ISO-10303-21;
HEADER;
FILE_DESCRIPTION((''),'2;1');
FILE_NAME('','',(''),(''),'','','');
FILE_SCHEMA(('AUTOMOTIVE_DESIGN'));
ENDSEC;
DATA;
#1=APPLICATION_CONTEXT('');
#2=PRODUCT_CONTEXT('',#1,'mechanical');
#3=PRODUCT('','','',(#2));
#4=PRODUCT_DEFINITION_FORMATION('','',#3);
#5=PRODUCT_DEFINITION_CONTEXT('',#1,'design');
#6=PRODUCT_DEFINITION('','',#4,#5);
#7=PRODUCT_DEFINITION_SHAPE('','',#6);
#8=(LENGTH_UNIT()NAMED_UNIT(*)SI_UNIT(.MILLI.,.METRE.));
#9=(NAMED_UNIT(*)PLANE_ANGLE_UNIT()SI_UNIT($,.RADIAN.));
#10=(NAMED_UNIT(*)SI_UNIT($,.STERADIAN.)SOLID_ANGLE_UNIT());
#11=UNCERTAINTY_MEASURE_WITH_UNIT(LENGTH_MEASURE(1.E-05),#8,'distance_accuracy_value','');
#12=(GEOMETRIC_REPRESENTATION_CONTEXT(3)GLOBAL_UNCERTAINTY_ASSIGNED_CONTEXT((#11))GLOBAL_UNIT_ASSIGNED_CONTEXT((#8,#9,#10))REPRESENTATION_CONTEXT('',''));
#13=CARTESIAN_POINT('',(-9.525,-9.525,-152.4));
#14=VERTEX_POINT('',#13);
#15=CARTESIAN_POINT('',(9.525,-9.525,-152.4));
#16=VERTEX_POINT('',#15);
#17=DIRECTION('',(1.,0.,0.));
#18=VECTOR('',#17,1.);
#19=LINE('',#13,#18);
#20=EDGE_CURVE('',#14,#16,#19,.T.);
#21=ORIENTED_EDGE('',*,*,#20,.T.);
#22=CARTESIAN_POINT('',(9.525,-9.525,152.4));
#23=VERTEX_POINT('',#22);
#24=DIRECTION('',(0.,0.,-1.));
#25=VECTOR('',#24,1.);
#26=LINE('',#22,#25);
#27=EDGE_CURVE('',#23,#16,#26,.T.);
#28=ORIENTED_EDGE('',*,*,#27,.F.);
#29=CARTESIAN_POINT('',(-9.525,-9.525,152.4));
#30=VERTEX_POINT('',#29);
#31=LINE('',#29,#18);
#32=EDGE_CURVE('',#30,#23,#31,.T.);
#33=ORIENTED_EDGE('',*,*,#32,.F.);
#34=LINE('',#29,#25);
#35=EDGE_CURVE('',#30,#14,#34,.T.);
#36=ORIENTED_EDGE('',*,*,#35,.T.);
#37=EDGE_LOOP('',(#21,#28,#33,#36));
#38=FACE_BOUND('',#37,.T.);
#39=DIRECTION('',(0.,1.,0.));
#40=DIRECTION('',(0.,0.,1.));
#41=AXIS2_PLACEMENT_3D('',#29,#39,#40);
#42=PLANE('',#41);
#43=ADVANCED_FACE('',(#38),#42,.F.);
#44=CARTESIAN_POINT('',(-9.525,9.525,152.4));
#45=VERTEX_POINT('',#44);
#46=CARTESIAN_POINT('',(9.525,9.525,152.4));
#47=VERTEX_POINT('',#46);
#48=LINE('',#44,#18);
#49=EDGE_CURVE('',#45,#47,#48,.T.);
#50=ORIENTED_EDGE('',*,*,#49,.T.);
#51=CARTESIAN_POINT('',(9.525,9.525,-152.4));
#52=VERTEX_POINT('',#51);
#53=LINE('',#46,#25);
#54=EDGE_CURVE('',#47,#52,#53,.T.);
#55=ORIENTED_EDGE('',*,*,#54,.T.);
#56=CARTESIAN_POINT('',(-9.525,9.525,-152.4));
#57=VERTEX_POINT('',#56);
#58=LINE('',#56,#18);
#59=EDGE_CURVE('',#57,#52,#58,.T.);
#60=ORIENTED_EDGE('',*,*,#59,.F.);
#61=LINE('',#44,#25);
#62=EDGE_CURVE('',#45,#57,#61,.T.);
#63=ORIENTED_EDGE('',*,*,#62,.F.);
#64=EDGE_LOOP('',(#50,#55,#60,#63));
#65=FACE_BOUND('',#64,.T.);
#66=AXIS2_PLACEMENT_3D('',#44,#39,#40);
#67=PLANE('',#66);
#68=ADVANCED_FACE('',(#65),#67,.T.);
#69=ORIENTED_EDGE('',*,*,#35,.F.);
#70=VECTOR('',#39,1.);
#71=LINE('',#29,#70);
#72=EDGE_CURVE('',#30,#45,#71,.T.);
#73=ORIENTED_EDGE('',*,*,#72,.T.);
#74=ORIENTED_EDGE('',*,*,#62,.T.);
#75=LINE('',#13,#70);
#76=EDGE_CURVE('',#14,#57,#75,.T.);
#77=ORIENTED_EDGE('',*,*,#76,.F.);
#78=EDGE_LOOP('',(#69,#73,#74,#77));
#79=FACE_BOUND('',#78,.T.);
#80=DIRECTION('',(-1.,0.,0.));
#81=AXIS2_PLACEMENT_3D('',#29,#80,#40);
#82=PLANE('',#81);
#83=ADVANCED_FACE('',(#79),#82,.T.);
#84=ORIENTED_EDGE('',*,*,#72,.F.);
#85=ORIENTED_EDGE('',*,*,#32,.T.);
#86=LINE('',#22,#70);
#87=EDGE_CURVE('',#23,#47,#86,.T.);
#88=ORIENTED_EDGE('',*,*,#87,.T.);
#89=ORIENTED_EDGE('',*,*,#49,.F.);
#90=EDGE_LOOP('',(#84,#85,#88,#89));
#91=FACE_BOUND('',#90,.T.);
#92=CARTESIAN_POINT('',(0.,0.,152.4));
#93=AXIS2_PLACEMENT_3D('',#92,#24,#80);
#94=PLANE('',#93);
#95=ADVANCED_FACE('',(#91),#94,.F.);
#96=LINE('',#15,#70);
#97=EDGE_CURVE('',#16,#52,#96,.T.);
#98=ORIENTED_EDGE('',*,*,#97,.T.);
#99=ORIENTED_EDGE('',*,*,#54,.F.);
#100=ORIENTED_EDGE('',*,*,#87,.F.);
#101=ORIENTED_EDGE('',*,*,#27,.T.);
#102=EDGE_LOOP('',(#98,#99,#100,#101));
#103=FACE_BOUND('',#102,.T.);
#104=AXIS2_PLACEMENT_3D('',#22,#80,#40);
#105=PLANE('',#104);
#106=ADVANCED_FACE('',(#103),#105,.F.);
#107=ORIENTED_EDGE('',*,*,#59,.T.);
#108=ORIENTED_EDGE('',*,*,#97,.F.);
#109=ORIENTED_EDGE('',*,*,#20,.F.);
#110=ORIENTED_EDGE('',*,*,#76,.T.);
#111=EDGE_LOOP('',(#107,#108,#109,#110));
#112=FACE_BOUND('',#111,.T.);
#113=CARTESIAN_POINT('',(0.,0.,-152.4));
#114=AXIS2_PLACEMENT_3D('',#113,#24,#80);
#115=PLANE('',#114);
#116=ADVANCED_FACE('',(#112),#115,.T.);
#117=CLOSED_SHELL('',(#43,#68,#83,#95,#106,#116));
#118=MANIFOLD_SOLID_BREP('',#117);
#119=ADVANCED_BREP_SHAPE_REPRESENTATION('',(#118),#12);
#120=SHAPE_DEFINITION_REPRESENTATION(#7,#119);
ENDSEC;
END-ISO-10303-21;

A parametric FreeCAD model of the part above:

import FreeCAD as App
import Part
import Sketcher
from FreeCAD import Vector
Q = App.Units.Quantity

doc = App.newDocument("Part")
body = doc.addObject("PartDesign::Body", "Body")

sketch1 = doc.addObject("Sketcher::SketchObject", "Sketch")
body.addObject(sketch1)
sketch1.AttachmentSupport = (doc.XY_Plane, [""])
sketch1.MapMode = "FlatFace"
sketch1.addGeometry([
    Part.LineSegment(Vector(-9.525, 9.525, 0), Vector(-9.525, -9.525, 0)),
    Part.LineSegment(Vector(-9.525, -9.525, 0), Vector(9.525, -9.525, 0)),
    Part.LineSegment(Vector(9.525, -9.525, 0), Vector(9.525, 9.525, 0)),
    Part.LineSegment(Vector(9.525, 9.525, 0), Vector(-9.525, 9.525, 0)),
], False)
sketch1.addConstraint([
    Sketcher.Constraint("Coincident", 0, 2, 1, 1),
    Sketcher.Constraint("Coincident", 1, 2, 2, 1),
    Sketcher.Constraint("Coincident", 2, 2, 3, 1),
    Sketcher.Constraint("Coincident", 3, 2, 0, 1),
    Sketcher.Constraint("Vertical", 0),
    Sketcher.Constraint("Horizontal", 1),
    Sketcher.Constraint("Vertical", 2),
    Sketcher.Constraint("Horizontal", 3),
    Sketcher.Constraint("Symmetric", 0, 2, 2, 2, -1, 1),
    Sketcher.Constraint("Equal", 3, 0),
    Sketcher.Constraint("DistanceX", 1, 1, 1, 2, Q("0.75 in")),
])
pad1 = doc.addObject("PartDesign::Pad", "Pad")
body.addObject(pad1)
pad1.Profile = sketch1
pad1.Length = Q("12 in")
pad1.Midplane = True

doc.recompute()
